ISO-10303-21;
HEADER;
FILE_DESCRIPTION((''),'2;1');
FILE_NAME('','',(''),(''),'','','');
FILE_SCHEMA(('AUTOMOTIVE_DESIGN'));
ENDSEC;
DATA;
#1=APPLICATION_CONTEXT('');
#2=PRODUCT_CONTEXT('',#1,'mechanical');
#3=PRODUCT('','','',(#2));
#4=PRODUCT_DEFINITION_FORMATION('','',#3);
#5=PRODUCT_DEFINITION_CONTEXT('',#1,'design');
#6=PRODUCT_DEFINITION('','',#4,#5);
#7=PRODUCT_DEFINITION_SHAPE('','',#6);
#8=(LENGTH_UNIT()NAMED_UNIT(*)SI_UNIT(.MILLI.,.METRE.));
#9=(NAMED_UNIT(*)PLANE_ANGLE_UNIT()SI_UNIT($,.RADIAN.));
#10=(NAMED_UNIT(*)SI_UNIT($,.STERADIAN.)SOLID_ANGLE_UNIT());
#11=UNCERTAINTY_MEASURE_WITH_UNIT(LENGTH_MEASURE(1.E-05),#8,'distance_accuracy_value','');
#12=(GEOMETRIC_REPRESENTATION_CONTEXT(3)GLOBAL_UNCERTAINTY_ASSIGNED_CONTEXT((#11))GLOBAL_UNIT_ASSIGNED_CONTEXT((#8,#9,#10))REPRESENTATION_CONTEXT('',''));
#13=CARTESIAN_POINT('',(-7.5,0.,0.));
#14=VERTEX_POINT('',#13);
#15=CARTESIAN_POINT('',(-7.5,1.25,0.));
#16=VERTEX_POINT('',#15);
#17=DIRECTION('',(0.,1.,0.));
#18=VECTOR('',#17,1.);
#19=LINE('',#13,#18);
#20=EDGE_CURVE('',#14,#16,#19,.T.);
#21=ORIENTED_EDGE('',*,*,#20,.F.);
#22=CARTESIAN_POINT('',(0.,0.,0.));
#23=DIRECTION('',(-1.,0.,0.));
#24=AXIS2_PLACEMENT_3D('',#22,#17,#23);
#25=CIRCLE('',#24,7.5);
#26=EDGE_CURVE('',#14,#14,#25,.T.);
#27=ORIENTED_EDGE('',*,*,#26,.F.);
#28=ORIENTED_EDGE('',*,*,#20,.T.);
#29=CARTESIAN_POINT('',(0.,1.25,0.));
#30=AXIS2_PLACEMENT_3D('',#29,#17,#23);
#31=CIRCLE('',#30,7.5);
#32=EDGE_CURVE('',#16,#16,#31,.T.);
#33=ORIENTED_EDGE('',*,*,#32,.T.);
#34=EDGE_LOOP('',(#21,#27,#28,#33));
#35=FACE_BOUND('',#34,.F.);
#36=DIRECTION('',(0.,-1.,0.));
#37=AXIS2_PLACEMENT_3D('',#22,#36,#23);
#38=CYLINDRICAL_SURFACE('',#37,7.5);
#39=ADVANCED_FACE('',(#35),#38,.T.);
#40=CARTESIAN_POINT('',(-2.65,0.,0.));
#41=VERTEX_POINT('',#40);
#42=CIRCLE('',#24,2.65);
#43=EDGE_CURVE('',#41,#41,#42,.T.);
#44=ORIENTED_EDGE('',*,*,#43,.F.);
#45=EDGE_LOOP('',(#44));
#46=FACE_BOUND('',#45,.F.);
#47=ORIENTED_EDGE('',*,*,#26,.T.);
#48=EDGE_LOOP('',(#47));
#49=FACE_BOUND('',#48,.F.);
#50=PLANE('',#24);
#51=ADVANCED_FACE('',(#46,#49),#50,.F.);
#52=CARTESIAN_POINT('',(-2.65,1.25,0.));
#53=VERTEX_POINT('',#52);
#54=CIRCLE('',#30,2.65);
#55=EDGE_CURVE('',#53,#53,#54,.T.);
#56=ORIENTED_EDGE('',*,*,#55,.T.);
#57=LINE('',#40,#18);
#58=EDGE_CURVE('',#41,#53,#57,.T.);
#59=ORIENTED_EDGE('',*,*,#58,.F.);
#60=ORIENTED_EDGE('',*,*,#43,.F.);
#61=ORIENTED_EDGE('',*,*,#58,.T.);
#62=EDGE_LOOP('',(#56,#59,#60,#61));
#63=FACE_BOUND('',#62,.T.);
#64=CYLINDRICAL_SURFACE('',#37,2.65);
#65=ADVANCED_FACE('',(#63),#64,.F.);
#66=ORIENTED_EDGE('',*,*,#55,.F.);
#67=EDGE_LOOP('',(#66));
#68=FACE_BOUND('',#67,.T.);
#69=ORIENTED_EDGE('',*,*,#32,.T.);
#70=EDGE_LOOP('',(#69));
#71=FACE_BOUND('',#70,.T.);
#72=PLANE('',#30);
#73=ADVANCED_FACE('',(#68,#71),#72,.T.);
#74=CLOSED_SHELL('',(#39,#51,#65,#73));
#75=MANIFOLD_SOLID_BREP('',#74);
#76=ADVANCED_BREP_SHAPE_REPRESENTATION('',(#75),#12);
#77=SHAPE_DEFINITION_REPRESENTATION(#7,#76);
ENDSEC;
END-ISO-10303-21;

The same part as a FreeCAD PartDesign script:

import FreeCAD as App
import Part
import Sketcher

V = App.Vector
Q = App.Units.Quantity

doc = App.newDocument("Part")
body = doc.addObject("PartDesign::Body", "Body")

sketch1 = body.newObject("Sketcher::SketchObject", "Sketch")
sketch1.AttachmentSupport = (doc.getObject("XZ_Plane"), [""])
sketch1.MapMode = "FlatFace"
sketch1.addGeometry([
    Part.Circle(V(0, 0, 0), V(0, 0, 1), 7.5),
    Part.Circle(V(0, 0, 0), V(0, 0, 1), 2.6),
], False)
sketch1.addConstraint([
    Sketcher.Constraint("Coincident", 0, 3, -1, 1),
    Sketcher.Constraint("Coincident", 1, 3, -1, 1),
    Sketcher.Constraint("Diameter", 0, Q("15 mm")),
    Sketcher.Constraint("Diameter", 1, Q("5.3 mm")),
])
pad1 = body.newObject("PartDesign::Pad", "Pad")
pad1.Profile = sketch1
pad1.Length = 1.25
pad1.Reversed = True

doc.recompute()
